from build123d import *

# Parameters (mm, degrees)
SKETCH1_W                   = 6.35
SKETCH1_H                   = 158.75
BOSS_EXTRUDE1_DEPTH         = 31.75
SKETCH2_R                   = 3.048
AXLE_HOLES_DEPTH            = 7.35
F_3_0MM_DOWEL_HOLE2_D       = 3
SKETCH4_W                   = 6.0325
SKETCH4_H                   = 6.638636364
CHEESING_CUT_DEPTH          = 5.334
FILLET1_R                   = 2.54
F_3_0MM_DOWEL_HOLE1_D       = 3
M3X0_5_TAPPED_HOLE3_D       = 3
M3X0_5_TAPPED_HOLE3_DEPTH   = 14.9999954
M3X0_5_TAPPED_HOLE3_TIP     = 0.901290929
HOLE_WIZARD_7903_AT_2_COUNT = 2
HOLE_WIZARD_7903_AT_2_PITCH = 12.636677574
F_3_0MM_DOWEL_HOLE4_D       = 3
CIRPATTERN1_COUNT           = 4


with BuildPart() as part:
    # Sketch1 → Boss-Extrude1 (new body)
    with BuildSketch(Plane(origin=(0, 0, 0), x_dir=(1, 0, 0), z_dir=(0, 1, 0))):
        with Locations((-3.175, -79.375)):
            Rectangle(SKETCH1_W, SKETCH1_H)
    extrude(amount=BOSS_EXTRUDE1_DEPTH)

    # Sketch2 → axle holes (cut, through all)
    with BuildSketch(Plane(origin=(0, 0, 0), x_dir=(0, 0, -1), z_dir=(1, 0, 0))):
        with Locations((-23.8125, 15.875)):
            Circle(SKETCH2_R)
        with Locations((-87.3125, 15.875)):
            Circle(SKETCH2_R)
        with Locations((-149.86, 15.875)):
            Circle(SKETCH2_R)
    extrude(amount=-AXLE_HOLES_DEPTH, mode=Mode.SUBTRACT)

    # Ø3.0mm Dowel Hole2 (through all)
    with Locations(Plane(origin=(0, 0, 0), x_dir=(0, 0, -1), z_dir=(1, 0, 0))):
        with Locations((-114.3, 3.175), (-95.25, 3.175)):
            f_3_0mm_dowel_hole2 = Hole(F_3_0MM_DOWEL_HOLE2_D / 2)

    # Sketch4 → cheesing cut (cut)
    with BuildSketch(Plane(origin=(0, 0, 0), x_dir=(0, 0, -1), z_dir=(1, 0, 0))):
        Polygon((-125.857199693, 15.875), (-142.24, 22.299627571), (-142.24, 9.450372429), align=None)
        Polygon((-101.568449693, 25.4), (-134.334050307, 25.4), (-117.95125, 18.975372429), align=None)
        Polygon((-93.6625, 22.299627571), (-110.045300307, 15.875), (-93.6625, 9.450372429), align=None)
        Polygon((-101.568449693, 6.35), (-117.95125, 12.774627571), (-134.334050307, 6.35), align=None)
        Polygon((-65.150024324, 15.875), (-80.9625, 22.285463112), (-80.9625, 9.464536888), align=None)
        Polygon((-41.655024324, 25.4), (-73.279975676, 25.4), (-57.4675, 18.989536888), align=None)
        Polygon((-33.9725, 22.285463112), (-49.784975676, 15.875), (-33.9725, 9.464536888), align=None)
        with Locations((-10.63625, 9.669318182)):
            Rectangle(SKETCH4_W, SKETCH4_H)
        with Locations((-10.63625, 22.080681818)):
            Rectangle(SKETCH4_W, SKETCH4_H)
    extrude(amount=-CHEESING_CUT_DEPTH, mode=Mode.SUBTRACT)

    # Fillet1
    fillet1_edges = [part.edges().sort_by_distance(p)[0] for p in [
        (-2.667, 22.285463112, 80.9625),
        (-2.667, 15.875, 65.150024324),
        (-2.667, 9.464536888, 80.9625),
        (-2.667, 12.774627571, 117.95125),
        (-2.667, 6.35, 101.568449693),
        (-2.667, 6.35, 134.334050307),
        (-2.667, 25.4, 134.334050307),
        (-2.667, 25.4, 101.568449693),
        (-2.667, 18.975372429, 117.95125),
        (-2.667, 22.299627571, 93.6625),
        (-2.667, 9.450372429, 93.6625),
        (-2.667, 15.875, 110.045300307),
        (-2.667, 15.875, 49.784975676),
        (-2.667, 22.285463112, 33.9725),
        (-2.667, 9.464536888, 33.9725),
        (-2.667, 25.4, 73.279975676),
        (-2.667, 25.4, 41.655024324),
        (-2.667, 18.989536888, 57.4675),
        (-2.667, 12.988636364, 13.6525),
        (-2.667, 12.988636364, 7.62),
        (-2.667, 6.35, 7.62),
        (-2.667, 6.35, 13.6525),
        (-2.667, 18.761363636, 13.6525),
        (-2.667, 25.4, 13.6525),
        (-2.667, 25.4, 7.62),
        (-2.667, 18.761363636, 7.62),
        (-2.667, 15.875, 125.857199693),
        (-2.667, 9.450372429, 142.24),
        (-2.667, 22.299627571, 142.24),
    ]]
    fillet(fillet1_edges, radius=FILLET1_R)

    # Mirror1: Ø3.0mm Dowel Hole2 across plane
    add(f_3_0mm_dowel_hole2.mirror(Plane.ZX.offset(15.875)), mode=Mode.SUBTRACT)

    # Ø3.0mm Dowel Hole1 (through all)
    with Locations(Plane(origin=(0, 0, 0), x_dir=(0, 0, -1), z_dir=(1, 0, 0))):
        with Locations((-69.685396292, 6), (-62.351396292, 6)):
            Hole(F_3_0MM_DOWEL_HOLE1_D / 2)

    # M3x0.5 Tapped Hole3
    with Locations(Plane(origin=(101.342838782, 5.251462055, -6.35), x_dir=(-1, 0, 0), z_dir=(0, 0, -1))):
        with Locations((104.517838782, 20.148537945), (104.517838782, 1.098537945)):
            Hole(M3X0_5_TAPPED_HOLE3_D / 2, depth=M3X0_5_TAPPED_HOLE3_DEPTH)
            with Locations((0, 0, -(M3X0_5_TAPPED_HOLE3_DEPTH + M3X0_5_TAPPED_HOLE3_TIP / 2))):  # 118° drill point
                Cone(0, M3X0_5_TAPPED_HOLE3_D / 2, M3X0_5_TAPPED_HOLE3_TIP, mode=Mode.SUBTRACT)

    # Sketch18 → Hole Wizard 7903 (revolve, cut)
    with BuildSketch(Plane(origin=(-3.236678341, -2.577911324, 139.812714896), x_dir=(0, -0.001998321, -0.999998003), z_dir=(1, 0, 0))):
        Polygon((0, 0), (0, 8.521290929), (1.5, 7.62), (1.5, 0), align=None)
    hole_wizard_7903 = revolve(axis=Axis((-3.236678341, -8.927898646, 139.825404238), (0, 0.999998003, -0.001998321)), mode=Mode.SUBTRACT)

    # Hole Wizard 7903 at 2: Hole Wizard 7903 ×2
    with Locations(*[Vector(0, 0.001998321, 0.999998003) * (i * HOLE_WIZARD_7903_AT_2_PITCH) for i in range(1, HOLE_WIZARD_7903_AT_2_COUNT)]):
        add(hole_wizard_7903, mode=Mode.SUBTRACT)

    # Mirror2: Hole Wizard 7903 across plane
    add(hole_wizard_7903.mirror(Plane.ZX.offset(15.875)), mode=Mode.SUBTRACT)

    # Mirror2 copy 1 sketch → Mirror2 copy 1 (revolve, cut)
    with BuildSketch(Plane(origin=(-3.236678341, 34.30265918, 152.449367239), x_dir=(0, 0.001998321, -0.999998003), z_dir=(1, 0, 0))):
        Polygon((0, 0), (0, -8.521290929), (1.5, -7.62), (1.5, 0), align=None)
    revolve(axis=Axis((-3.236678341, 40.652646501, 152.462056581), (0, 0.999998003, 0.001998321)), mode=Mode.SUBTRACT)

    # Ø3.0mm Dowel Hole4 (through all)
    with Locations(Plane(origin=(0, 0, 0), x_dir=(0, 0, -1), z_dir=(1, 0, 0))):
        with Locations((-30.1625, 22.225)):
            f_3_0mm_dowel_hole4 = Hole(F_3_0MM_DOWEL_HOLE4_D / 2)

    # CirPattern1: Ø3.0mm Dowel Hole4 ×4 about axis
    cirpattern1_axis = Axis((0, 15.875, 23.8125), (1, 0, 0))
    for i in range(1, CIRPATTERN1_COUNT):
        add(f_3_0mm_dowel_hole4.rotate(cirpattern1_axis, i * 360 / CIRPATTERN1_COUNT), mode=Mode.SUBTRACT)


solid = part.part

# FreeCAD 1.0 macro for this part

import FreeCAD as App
import Part
import Sketcher
Q = App.Units.Quantity


def edges_at(feature, points):
    """Names of the edges that pass closest to the given points."""
    edges = feature.Shape.Edges
    near = lambda p: min(range(len(edges)), key=lambda i: edges[i].distToShape(Part.Vertex(*p))[0])
    return sorted({f"Edge{near(p) + 1}" for p in points})

doc = App.newDocument("Part")
params = doc.addObject("Spreadsheet::Sheet", "Params")
for row, (alias, value) in enumerate([
    ("sketch1_width", "0.25 in"),
    ("sketch1_height", "6.25 in"),
    ("pad1_length", "1.25 in"),
    ("sketch2_diameter", "0.24 in"),
    ("hole_diameter", "3 mm"),
    ("pocket2_length", "0.21 in"),
    ("fillet_radius", "0.1 in"),
    ("hole2_diameter", "3 mm"),
    ("hole3_diameter", "3 mm"),
    ("hole3_depth", "14.999995 mm"),
    ("sketch7_length", "0.3 in"),
    ("groove_angle", "360 deg"),
    ("linearpattern_pitch", "12.636678 mm"),
    ("sketch8_length", "0.3 in"),
    ("groove2_angle", "360 deg"),
    ("hole4_diameter", "3 mm"),
], start=1):
    params.set(f"A{row}", alias)
    params.set(f"B{row}", "=" + value)
    params.setAlias(f"B{row}", alias)

body = doc.addObject("PartDesign::Body", "Body")

sketch1 = body.newObject("Sketcher::SketchObject", "Sketch")
sketch1.AttachmentSupport = (doc.getObject("XZ_Plane"), [""])
sketch1.MapMode = "FlatFace"
sketch1.addGeometry(Part.LineSegment(App.Vector(-6, 0, 0), App.Vector(-6, 159, 0)), False)
sketch1.addGeometry(Part.LineSegment(App.Vector(-6, 159, 0), App.Vector(0, 159, 0)), False)
sketch1.addGeometry(Part.LineSegment(App.Vector(0, 159, 0), App.Vector(0, 0, 0)), False)
sketch1.addGeometry(Part.LineSegment(App.Vector(0, 0, 0), App.Vector(-6, 0, 0)), False)
sketch1.addConstraint(Sketcher.Constraint("Coincident", 0, 2, 1, 1))
sketch1.addConstraint(Sketcher.Constraint("Coincident", 1, 2, 2, 1))
sketch1.addConstraint(Sketcher.Constraint("Coincident", 2, 2, 3, 1))
sketch1.addConstraint(Sketcher.Constraint("Coincident", 3, 2, 0, 1))
sketch1.addConstraint(Sketcher.Constraint("Vertical", 0))
sketch1.addConstraint(Sketcher.Constraint("Horizontal", 1))
sketch1.addConstraint(Sketcher.Constraint("Vertical", 2))
sketch1.addConstraint(Sketcher.Constraint("Horizontal", 3))
sketch1.addConstraint(Sketcher.Constraint("Coincident", 2, 2, -1, 1))
sketch1.addConstraint(Sketcher.Constraint("DistanceX", 1, 1, 1, 2, Q("0.25 in")))
sketch1.addConstraint(Sketcher.Constraint("DistanceY", 0, 1, 0, 2, Q("6.25 in")))
sketch1.setExpression("Constraints[9]", "Params.sketch1_width")
sketch1.setExpression("Constraints[10]", "Params.sketch1_height")
pad1 = body.newObject("PartDesign::Pad", "Pad")
pad1.Profile = sketch1
pad1.setExpression("Length", "Params.pad1_length")
pad1.Reversed = True

sketch2 = body.newObject("Sketcher::SketchObject", "Sketch001")
sketch2.AttachmentSupport = (doc.getObject("YZ_Plane"), [""])
sketch2.MapMode = "FlatFace"
sketch2.addGeometry(Part.Circle(App.Vector(15.9, 23.8, 0), App.Vector(0, 0, 1), 3), False)
sketch2.addGeometry(Part.Circle(App.Vector(15.9, 87.3, 0), App.Vector(0, 0, 1), 3), False)
sketch2.addGeometry(Part.Circle(App.Vector(15.9, 149.9, 0), App.Vector(0, 0, 1), 3), False)
sketch2.addConstraint(Sketcher.Constraint("Equal", 0, 1))
sketch2.addConstraint(Sketcher.Constraint("Equal", 1, 2))
sketch2.addConstraint(Sketcher.Constraint("Vertical", 0, 3, 1, 3))
sketch2.addConstraint(Sketcher.Constraint("Vertical", 1, 3, 2, 3))
sketch2.addConstraint(Sketcher.Constraint("Diameter", 0, Q("0.24 in")))
sketch2.addConstraint(Sketcher.Constraint("DistanceY", -1, 1, 2, 3, Q("5.9 in")))
sketch2.addConstraint(Sketcher.Constraint("DistanceY", 0, 3, 1, 3, Q("2.5 in")))
sketch2.addConstraint(Sketcher.Constraint("DistanceX", -1, 1, 0, 3, Q("0.625 in")))
sketch2.addConstraint(Sketcher.Constraint("DistanceY", -1, 1, 0, 3, Q("0.9375 in")))
sketch2.setExpression("Constraints[4]", "Params.sketch2_diameter")
pocket1 = body.newObject("PartDesign::Pocket", "Pocket")
pocket1.Profile = sketch2
pocket1.Type = "ThroughAll"

sketch3 = body.newObject("Sketcher::SketchObject", "Sketch002")
sketch3.AttachmentSupport = (doc.getObject("YZ_Plane"), [""])
sketch3.MapMode = "FlatFace"
sketch3.addGeometry(Part.Circle(App.Vector(3.2, 114.3, 0), App.Vector(0, 0, 1), 1.5), False)
sketch3.addGeometry(Part.Circle(App.Vector(3.2, 95.2, 0), App.Vector(0, 0, 1), 1.5), False)
sketch3.addConstraint(Sketcher.Constraint("Equal", 0, 1))
sketch3.addConstraint(Sketcher.Constraint("Vertical", 0, 3, 1, 3))
sketch3.addConstraint(Sketcher.Constraint("DistanceY", -1, 1, 0, 3, Q("4.5 in")))
sketch3.addConstraint(Sketcher.Constraint("Diameter", 0, 3.0))
sketch3.addConstraint(Sketcher.Constraint("DistanceY", -1, 1, 1, 3, Q("3.75 in")))
sketch3.addConstraint(Sketcher.Constraint("DistanceX", -1, 1, 0, 3, Q("0.125 in")))
doc.recompute()
hole = body.newObject("PartDesign::Hole", "Hole")
hole.Profile = sketch3
hole.ThreadType = "None"
hole.setExpression("Diameter", "Params.hole_diameter")
hole.DepthType = "ThroughAll"

sketch4 = body.newObject("Sketcher::SketchObject", "Sketch003")
sketch4.AttachmentSupport = (doc.getObject("YZ_Plane"), [""])
sketch4.MapMode = "FlatFace"
sketch4.addGeometry(Part.LineSegment(App.Vector(16, 126, 0), App.Vector(22, 142, 0)), False)
sketch4.addGeometry(Part.LineSegment(App.Vector(22, 142, 0), App.Vector(9, 142, 0)), False)
sketch4.addGeometry(Part.LineSegment(App.Vector(9, 142, 0), App.Vector(16, 126, 0)), False)
sketch4.addGeometry(Part.LineSegment(App.Vector(25, 102, 0), App.Vector(25, 134, 0)), False)
sketch4.addGeometry(Part.LineSegment(App.Vector(25, 134, 0), App.Vector(19, 118, 0)), False)
sketch4.addGeometry(Part.LineSegment(App.Vector(19, 118, 0), App.Vector(25, 102, 0)), False)
sketch4.addGeometry(Part.LineSegment(App.Vector(22, 94, 0), App.Vector(16, 110, 0)), False)
sketch4.addGeometry(Part.LineSegment(App.Vector(16, 110, 0), App.Vector(9, 94, 0)), False)
sketch4.addGeometry(Part.LineSegment(App.Vector(9, 94, 0), App.Vector(22, 94, 0)), False)
sketch4.addGeometry(Part.LineSegment(App.Vector(6, 102, 0), App.Vector(13, 118, 0)), False)
sketch4.addGeometry(Part.LineSegment(App.Vector(13, 118, 0), App.Vector(6, 134, 0)), False)
sketch4.addGeometry(Part.LineSegment(App.Vector(6, 134, 0), App.Vector(6, 102, 0)), False)
sketch4.addGeometry(Part.LineSegment(App.Vector(16, 65, 0), App.Vector(22, 81, 0)), False)
sketch4.addGeometry(Part.LineSegment(App.Vector(22, 81, 0), App.Vector(9, 81, 0)), False)
sketch4.addGeometry(Part.LineSegment(App.Vector(9, 81, 0), App.Vector(16, 65, 0)), False)
sketch4.addGeometry(Part.LineSegment(App.Vector(25, 42, 0), App.Vector(25, 73, 0)), False)
sketch4.addGeometry(Part.LineSegment(App.Vector(25, 73, 0), App.Vector(19, 57, 0)), False)
sketch4.addGeometry(Part.LineSegment(App.Vector(19, 57, 0), App.Vector(25, 42, 0)), False)
sketch4.addGeometry(Part.LineSegment(App.Vector(22, 34, 0), App.Vector(16, 50, 0)), False)
sketch4.addGeometry(Part.LineSegment(App.Vector(16, 50, 0), App.Vector(9, 34, 0)), False)
sketch4.addGeometry(Part.LineSegment(App.Vector(9, 34, 0), App.Vector(22, 34, 0)), False)
sketch4.addGeometry(Part.LineSegment(App.Vector(13, 14, 0), App.Vector(6, 14, 0)), False)
sketch4.addGeometry(Part.LineSegment(App.Vector(6, 14, 0), App.Vector(6, 8, 0)), False)
sketch4.addGeometry(Part.LineSegment(App.Vector(6, 8, 0), App.Vector(13, 8, 0)), False)
sketch4.addGeometry(Part.LineSegment(App.Vector(13, 8, 0), App.Vector(13, 14, 0)), False)
sketch4.addGeometry(Part.LineSegment(App.Vector(25, 14, 0), App.Vector(19, 14, 0)), False)
sketch4.addGeometry(Part.LineSegment(App.Vector(19, 14, 0), App.Vector(19, 8, 0)), False)
sketch4.addGeometry(Part.LineSegment(App.Vector(19, 8, 0), App.Vector(25, 8, 0)), False)
sketch4.addGeometry(Part.LineSegment(App.Vector(25, 8, 0), App.Vector(25, 14, 0)), False)
sketch4.addConstraint(Sketcher.Constraint("Coincident", 0, 2, 1, 1))
sketch4.addConstraint(Sketcher.Constraint("Coincident", 1, 2, 2, 1))
sketch4.addConstraint(Sketcher.Constraint("Coincident", 2, 2, 0, 1))
sketch4.addConstraint(Sketcher.Constraint("Coincident", 3, 2, 4, 1))
sketch4.addConstraint(Sketcher.Constraint("Coincident", 4, 2, 5, 1))
sketch4.addConstraint(Sketcher.Constraint("Coincident", 5, 2, 3, 1))
sketch4.addConstraint(Sketcher.Constraint("Coincident", 6, 2, 7, 1))
sketch4.addConstraint(Sketcher.Constraint("Coincident", 7, 2, 8, 1))
sketch4.addConstraint(Sketcher.Constraint("Coincident", 8, 2, 6, 1))
sketch4.addConstraint(Sketcher.Constraint("Coincident", 9, 2, 10, 1))
sketch4.addConstraint(Sketcher.Constraint("Coincident", 10, 2, 11, 1))
sketch4.addConstraint(Sketcher.Constraint("Coincident", 11, 2, 9, 1))
sketch4.addConstraint(Sketcher.Constraint("Coincident", 12, 2, 13, 1))
sketch4.addConstraint(Sketcher.Constraint("Coincident", 13, 2, 14, 1))
sketch4.addConstraint(Sketcher.Constraint("Coincident", 14, 2, 12, 1))
sketch4.addConstraint(Sketcher.Constraint("Coincident", 15, 2, 16, 1))
sketch4.addConstraint(Sketcher.Constraint("Coincident", 16, 2, 17, 1))
sketch4.addConstraint(Sketcher.Constraint("Coincident", 17, 2, 15, 1))
sketch4.addConstraint(Sketcher.Constraint("Coincident", 18, 2, 19, 1))
sketch4.addConstraint(Sketcher.Constraint("Coincident", 19, 2, 20, 1))
sketch4.addConstraint(Sketcher.Constraint("Coincident", 20, 2, 18, 1))
sketch4.addConstraint(Sketcher.Constraint("Coincident", 21, 2, 22, 1))
sketch4.addConstraint(Sketcher.Constraint("Coincident", 22, 2, 23, 1))
sketch4.addConstraint(Sketcher.Constraint("Coincident", 23, 2, 24, 1))
sketch4.addConstraint(Sketcher.Constraint("Coincident", 24, 2, 21, 1))
sketch4.addConstraint(Sketcher.Constraint("Coincident", 25, 2, 26, 1))
sketch4.addConstraint(Sketcher.Constraint("Coincident", 26, 2, 27, 1))
sketch4.addConstraint(Sketcher.Constraint("Coincident", 27, 2, 28, 1))
sketch4.addConstraint(Sketcher.Constraint("Coincident", 28, 2, 25, 1))
sketch4.addConstraint(Sketcher.Constraint("Horizontal", 1))
sketch4.addConstraint(Sketcher.Constraint("Vertical", 3))
sketch4.addConstraint(Sketcher.Constraint("Horizontal", 8))
sketch4.addConstraint(Sketcher.Constraint("Vertical", 11))
sketch4.addConstraint(Sketcher.Constraint("Horizontal", 13))
sketch4.addConstraint(Sketcher.Constraint("Vertical", 15))
sketch4.addConstraint(Sketcher.Constraint("Horizontal", 20))
sketch4.addConstraint(Sketcher.Constraint("Horizontal", 21))
sketch4.addConstraint(Sketcher.Constraint("Vertical", 22))
sketch4.addConstraint(Sketcher.Constraint("Horizontal", 23))
sketch4.addConstraint(Sketcher.Constraint("Vertical", 24))
sketch4.addConstraint(Sketcher.Constraint("Horizontal", 25))
sketch4.addConstraint(Sketcher.Constraint("Vertical", 26))
sketch4.addConstraint(Sketcher.Constraint("Horizontal", 27))
sketch4.addConstraint(Sketcher.Constraint("Vertical", 28))
sketch4.addConstraint(Sketcher.Constraint("Parallel", 0, 4))
sketch4.addConstraint(Sketcher.Constraint("Parallel", 2, 5))
sketch4.addConstraint(Sketcher.Constraint("Parallel", 5, 6))
sketch4.addConstraint(Sketcher.Constraint("Parallel", 4, 7))
sketch4.addConstraint(Sketcher.Constraint("Parallel", 7, 9))
sketch4.addConstraint(Sketcher.Constraint("Parallel", 6, 10))
sketch4.addConstraint(Sketcher.Constraint("Parallel", 12, 16))
sketch4.addConstraint(Sketcher.Constraint("Parallel", 14, 17))
sketch4.addConstraint(Sketcher.Constraint("Parallel", 17, 18))
sketch4.addConstraint(Sketcher.Constraint("Parallel", 16, 19))
sketch4.addConstraint(Sketcher.Constraint("Horizontal", 4, 2, 9, 2))
sketch4.addConstraint(Sketcher.Constraint("Horizontal", 3, 2, 10, 2))
sketch4.addConstraint(Sketcher.Constraint("Horizontal", 5, 2, 11, 2))
sketch4.addConstraint(Sketcher.Constraint("Horizontal", 24, 2, 25, 2))
sketch4.addConstraint(Sketcher.Constraint("Horizontal", 23, 2, 26, 2))
sketch4.addConstraint(Sketcher.Constraint("Vertical", 2, 2, 6, 2))
sketch4.addConstraint(Sketcher.Constraint("Vertical", 1, 2, 7, 2))
sketch4.addConstraint(Sketcher.Constraint("Vertical", 6, 2, 14, 2))
sketch4.addConstraint(Sketcher.Constraint("Vertical", 5, 2, 15, 2))
sketch4.addConstraint(Sketcher.Constraint("Vertical", 14, 2, 18, 2))
sketch4.addConstraint(Sketcher.Constraint("Vertical", 13, 2, 19, 2))
sketch4.addConstraint(Sketcher.Constraint("Vertical", 12, 2, 20, 2))
sketch4.addConstraint(Sketcher.Constraint("Vertical", 11, 2, 21, 2))
sketch4.addConstraint(Sketcher.Constraint("Vertical", 17, 2, 27, 2))
sketch4.addConstraint(Sketcher.Constraint("Equal", 23, 25))
sketch4.addConstraint(Sketcher.Constraint("Equal", 2, 4))
sketch4.addConstraint(Sketcher.Constraint("Equal", 14, 16))
sketch4.addConstraint(Sketcher.Constraint("DistanceX", -1, 1, 3, 2, Q("1 in")))
sketch4.addConstraint(Sketcher.Constraint("DistanceY", -1, 1, 0, 2, Q("5.6 in")))
sketch4.addConstraint(Sketcher.Constraint("DistanceY", -1, 1, 22, 2, Q("0.3 in")))
sketch4.addConstraint(Sketcher.Constraint("DistanceY", 12, 2, 8, 2, Q("0.5 in")))
sketch4.addConstraint(Sketcher.Constraint("DistanceY", 21, 2, 19, 2, Q("0.8 in")))
sketch4.addConstraint(Sketcher.Constraint("DistanceX", -1, 1, 10, 2, Q("0.25 in")))
sketch4.addConstraint(Sketcher.Constraint("DistanceY", 22, 2, 22, 1, Q("0.2375 in")))
sketch4.addConstraint(Sketcher.Constraint("DistanceX", -1, 1, 2, 2, Q("0.625 in")))
sketch4.addConstraint(Sketcher.Constraint("DistanceY", -1, 1, 7, 2, Q("3.6875 in")))
sketch4.addConstraint(Sketcher.Constraint("DistanceY", 16, 2, 12, 2, Q("0.925 in")))
sketch4.addConstraint(Sketcher.Constraint("DistanceY", 3, 1, 3, 2, 32.765601))
sketch4.addConstraint(Sketcher.Constraint("Distance", 0, 17.597499))
sketch4.addConstraint(Sketcher.Constraint("DistanceY", 15, 1, 15, 2, 31.624951))
sketch4.addConstraint(Sketcher.Constraint("DistanceX", 19, 2, 23, 2, 3.524099))
sketch4.addConstraint(Sketcher.Constraint("DistanceX", 13, 2, 13, 1, 12.820926))
sketch4.addConstraint(Sketcher.Constraint("DistanceY", -1, 1, 3, 2, 134.33405))
pocket2 = body.newObject("PartDesign::Pocket", "Pocket001")
pocket2.Profile = sketch4
pocket2.setExpression("Length", "Params.pocket2_length")
doc.recompute()

fillet = body.newObject("PartDesign::Fillet", "Fillet")
fillet.Base = (pocket2, edges_at(pocket2, [
    (-2.667, 22.285, 80.963),
    (-2.667, 15.875, 65.15),
    (-2.667, 9.465, 80.963),
    (-2.667, 12.775, 117.951),
    (-2.667, 6.35, 101.568),
    (-2.667, 6.35, 134.334),
    (-2.667, 25.4, 134.334),
    (-2.667, 25.4, 101.568),
    (-2.667, 18.975, 117.951),
    (-2.667, 22.3, 93.662),
    (-2.667, 9.45, 93.662),
    (-2.667, 15.875, 110.045),
    (-2.667, 15.875, 49.785),
    (-2.667, 22.285, 33.972),
    (-2.667, 9.465, 33.972),
    (-2.667, 25.4, 73.28),
    (-2.667, 25.4, 41.655),
    (-2.667, 18.99, 57.468),
    (-2.667, 12.989, 13.652),
    (-2.667, 12.989, 7.62),
    (-2.667, 6.35, 7.62),
    (-2.667, 6.35, 13.652),
    (-2.667, 18.761, 13.652),
    (-2.667, 25.4, 13.652),
    (-2.667, 25.4, 7.62),
    (-2.667, 18.761, 7.62),
    (-2.667, 15.875, 125.857),
    (-2.667, 9.45, 142.24),
    (-2.667, 22.3, 142.24),
]))
fillet.setExpression("Radius", "Params.fillet_radius")
doc.recompute()

datumplane = body.newObject("PartDesign::Plane", "DatumPlane")
datumplane.AttachmentSupport = (doc.getObject("XZ_Plane"), [""])
datumplane.MapMode = "FlatFace"
datumplane.AttachmentOffset = App.Placement(App.Vector(0, 0, -0.625 * 25.4), App.Rotation())
mirrored = body.newObject("PartDesign::Mirrored", "Mirrored")
mirrored.Originals = [hole]
mirrored.MirrorPlane = (datumplane, [""])
body.Tip = mirrored

sketch5 = body.newObject("Sketcher::SketchObject", "Sketch004")
sketch5.AttachmentSupport = (doc.getObject("YZ_Plane"), [""])
sketch5.MapMode = "FlatFace"
sketch5.addGeometry(Part.Circle(App.Vector(6, 69.7, 0), App.Vector(0, 0, 1), 1.5), False)
sketch5.addGeometry(Part.Circle(App.Vector(6, 62.4, 0), App.Vector(0, 0, 1), 1.5), False)
sketch5.addConstraint(Sketcher.Constraint("Equal", 0, 1))
sketch5.addConstraint(Sketcher.Constraint("Vertical", 0, 3, 1, 3))
sketch5.addConstraint(Sketcher.Constraint("Diameter", 0, 3.0))
sketch5.addConstraint(Sketcher.Constraint("DistanceX", -1, 1, 0, 3, 6.0))
sketch5.addConstraint(Sketcher.Constraint("DistanceY", 1, 3, 0, 3, 7.334))
sketch5.addConstraint(Sketcher.Constraint("DistanceY", -1, 1, 0, 3, 69.685396))
doc.recompute()
hole2 = body.newObject("PartDesign::Hole", "Hole001")
hole2.Profile = sketch5
hole2.ThreadType = "None"
hole2.setExpression("Diameter", "Params.hole2_diameter")
hole2.DepthType = "ThroughAll"

sketch6 = body.newObject("Sketcher::SketchObject", "Sketch005")
sketch6.AttachmentSupport = (doc.getObject("XY_Plane"), [""])
sketch6.MapMode = "FlatFace"
sketch6.AttachmentOffset = App.Placement(App.Vector(0, 0, -0.25 * 25.4), App.Rotation())
sketch6.addGeometry(Part.Circle(App.Vector(-3.2, 25.4, 0), App.Vector(0, 0, 1), 1.5), False)
sketch6.addGeometry(Part.Circle(App.Vector(-3.2, 6.3, 0), App.Vector(0, 0, 1), 1.5), False)
sketch6.addConstraint(Sketcher.Constraint("Equal", 0, 1))
sketch6.addConstraint(Sketcher.Constraint("Vertical", 0, 3, 1, 3))
sketch6.addConstraint(Sketcher.Constraint("DistanceY", -1, 1, 0, 3, Q("1 in")))
sketch6.addConstraint(Sketcher.Constraint("Diameter", 0, 3.0))
sketch6.addConstraint(Sketcher.Constraint("DistanceY", -1, 1, 1, 3, Q("0.25 in")))
sketch6.addConstraint(Sketcher.Constraint("DistanceX", 0, 3, -1, 1, Q("0.125 in")))
doc.recompute()
hole3 = body.newObject("PartDesign::Hole", "Hole002")
hole3.Profile = sketch6
hole3.ThreadType = "None"
hole3.setExpression("Diameter", "Params.hole3_diameter")
hole3.DepthType = "Dimension"
hole3.setExpression("Depth", "Params.hole3_depth")
hole3.DrillPoint = "Angled"
hole3.DrillPointAngle = 118
hole3.Reversed = True

sketch7 = body.newObject("Sketcher::SketchObject", "Sketch006")
sketch7.AttachmentSupport = (doc.getObject("YZ_Plane"), [""])
sketch7.MapMode = "FlatFace"
sketch7.AttachmentOffset = App.Placement(App.Vector(0, 0, -3.236678), App.Rotation())
sketch7.addGeometry(Part.LineSegment(App.Vector(5.9, 139.8, 0), App.Vector(-2.6, 139.8, 0)), False)
sketch7.addGeometry(Part.LineSegment(App.Vector(-2.6, 139.8, 0), App.Vector(-2.6, 138.3, 0)), False)
sketch7.addGeometry(Part.LineSegment(App.Vector(-2.6, 138.3, 0), App.Vector(5, 138.3, 0)), False)
sketch7.addGeometry(Part.LineSegment(App.Vector(5, 138.3, 0), App.Vector(5.9, 139.8, 0)), False)
sketch7.addGeometry(Part.LineSegment(App.Vector(-2.6, 139.8, 0), App.Vector(5.9, 139.8, 0)), True)
sketch7.addConstraint(Sketcher.Constraint("Coincident", 0, 2, 1, 1))
sketch7.addConstraint(Sketcher.Constraint("Coincident", 1, 2, 2, 1))
sketch7.addConstraint(Sketcher.Constraint("Coincident", 2, 2, 3, 1))
sketch7.addConstraint(Sketcher.Constraint("Coincident", 3, 2, 0, 1))
sketch7.addConstraint(Sketcher.Constraint("Coincident", 4, 1, 0, 2))
sketch7.addConstraint(Sketcher.Constraint("Coincident", 4, 2, 3, 2))
sketch7.addConstraint(Sketcher.Constraint("Perpendicular", 0, 1))
sketch7.addConstraint(Sketcher.Constraint("Perpendicular", 1, 2))
sketch7.addConstraint(Sketcher.Constraint("Distance", 2, Q("0.3 in")))
sketch7.addConstraint(Sketcher.Constraint("Distance", 1, 1.5))
sketch7.addConstraint(Sketcher.Constraint("Distance", 0, 8.521291))
sketch7.addConstraint(Sketcher.Constraint("DistanceX", 0, 2, -1, 1, 2.577911))
sketch7.addConstraint(Sketcher.Constraint("DistanceX", 1, 2, -1, 1, 2.580909))
sketch7.addConstraint(Sketcher.Constraint("DistanceY", -1, 1, 2, 2, 138.297491))
sketch7.setExpression("Constraints[8]", "Params.sketch7_length")
groove = body.newObject("PartDesign::Groove", "Groove")
groove.Profile = sketch7
groove.ReferenceAxis = (sketch7, ["Axis0"])
groove.setExpression("Angle", "Params.groove_angle")
doc.recompute()

datumline = body.newObject("PartDesign::Line", "DatumLine")
datumline.Placement = App.Placement(App.Vector(0, 0, 0), App.Rotation(App.Vector(0, 0, 1), App.Vector(0, 0.001998321, 0.999998003)))
linearpattern = body.newObject("PartDesign::LinearPattern", "LinearPattern")
linearpattern.Originals = [groove]
linearpattern.Direction = (datumline, [""])
linearpattern.Mode = "offset"
linearpattern.setExpression("Offset", "Params.linearpattern_pitch")
linearpattern.Occurrences = 2
body.Tip = linearpattern
doc.recompute()

datumplane2 = body.newObject("PartDesign::Plane", "DatumPlane001")
datumplane2.AttachmentSupport = (doc.getObject("XZ_Plane"), [""])
datumplane2.MapMode = "FlatFace"
datumplane2.AttachmentOffset = App.Placement(App.Vector(0, 0, -0.625 * 25.4), App.Rotation())
mirrored2 = body.newObject("PartDesign::Mirrored", "Mirrored001")
mirrored2.Originals = [groove]
mirrored2.MirrorPlane = (datumplane2, [""])
body.Tip = mirrored2

sketch8 = body.newObject("Sketcher::SketchObject", "Sketch007")
sketch8.AttachmentSupport = (doc.getObject("YZ_Plane"), [""])
sketch8.MapMode = "FlatFace"
sketch8.AttachmentOffset = App.Placement(App.Vector(0, 0, -3.236678), App.Rotation())
sketch8.addGeometry(Part.LineSegment(App.Vector(34.3, 152.4, 0), App.Vector(25.8, 152.4, 0)), False)
sketch8.addGeometry(Part.LineSegment(App.Vector(25.8, 152.4, 0), App.Vector(26.7, 150.9, 0)), False)
sketch8.addGeometry(Part.LineSegment(App.Vector(26.7, 150.9, 0), App.Vector(34.3, 150.9, 0)), False)
sketch8.addGeometry(Part.LineSegment(App.Vector(34.3, 150.9, 0), App.Vector(34.3, 152.4, 0)), False)
sketch8.addGeometry(Part.LineSegment(App.Vector(25.8, 152.4, 0), App.Vector(34.3, 152.4, 0)), True)
sketch8.addConstraint(Sketcher.Constraint("Coincident", 0, 2, 1, 1))
sketch8.addConstraint(Sketcher.Constraint("Coincident", 1, 2, 2, 1))
sketch8.addConstraint(Sketcher.Constraint("Coincident", 2, 2, 3, 1))
sketch8.addConstraint(Sketcher.Constraint("Coincident", 3, 2, 0, 1))
sketch8.addConstraint(Sketcher.Constraint("Coincident", 4, 1, 0, 2))
sketch8.addConstraint(Sketcher.Constraint("Coincident", 4, 2, 3, 2))
sketch8.addConstraint(Sketcher.Constraint("Parallel", 0, 2))
sketch8.addConstraint(Sketcher.Constraint("Perpendicular", 2, 3))
sketch8.addConstraint(Sketcher.Constraint("Distance", 2, Q("0.3 in")))
sketch8.addConstraint(Sketcher.Constraint("Distance", 3, 1.5))
sketch8.addConstraint(Sketcher.Constraint("Distance", 0, 8.521291))
sketch8.addConstraint(Sketcher.Constraint("DistanceY", -1, 1, 0, 2, 152.432339))
sketch8.addConstraint(Sketcher.Constraint("DistanceX", -1, 1, 1, 2, 26.685672))
sketch8.addConstraint(Sketcher.Constraint("DistanceY", -1, 1, 2, 2, 150.94937))
sketch8.setExpression("Constraints[8]", "Params.sketch8_length")
groove2 = body.newObject("PartDesign::Groove", "Groove001")
groove2.Profile = sketch8
groove2.ReferenceAxis = (sketch8, ["Axis0"])
groove2.setExpression("Angle", "Params.groove2_angle")

sketch9 = body.newObject("Sketcher::SketchObject", "Sketch008")
sketch9.AttachmentSupport = (doc.getObject("YZ_Plane"), [""])
sketch9.MapMode = "FlatFace"
sketch9.addGeometry(Part.Circle(App.Vector(22.2, 30.2, 0), App.Vector(0, 0, 1), 1.5), False)
sketch9.addConstraint(Sketcher.Constraint("Diameter", 0, 3.0))
sketch9.addConstraint(Sketcher.Constraint("DistanceX", -1, 1, 0, 3, Q("0.875 in")))
sketch9.addConstraint(Sketcher.Constraint("DistanceY", -1, 1, 0, 3, Q("1.1875 in")))
doc.recompute()
hole4 = body.newObject("PartDesign::Hole", "Hole003")
hole4.Profile = sketch9
hole4.ThreadType = "None"
hole4.setExpression("Diameter", "Params.hole4_diameter")
hole4.DepthType = "ThroughAll"
doc.recompute()

datumline2 = body.newObject("PartDesign::Line", "DatumLine001")
datumline2.Placement = App.Placement(App.Vector(0, 15.875, 23.8125), App.Rotation(App.Vector(0, 0, 1), App.Vector(1, 0, 0)))
polarpattern = body.newObject("PartDesign::PolarPattern", "PolarPattern")
polarpattern.Originals = [hole4]
polarpattern.Axis = (datumline2, [""])
polarpattern.Angle = 360
polarpattern.Occurrences = 4
body.Tip = polarpattern

doc.recompute()
